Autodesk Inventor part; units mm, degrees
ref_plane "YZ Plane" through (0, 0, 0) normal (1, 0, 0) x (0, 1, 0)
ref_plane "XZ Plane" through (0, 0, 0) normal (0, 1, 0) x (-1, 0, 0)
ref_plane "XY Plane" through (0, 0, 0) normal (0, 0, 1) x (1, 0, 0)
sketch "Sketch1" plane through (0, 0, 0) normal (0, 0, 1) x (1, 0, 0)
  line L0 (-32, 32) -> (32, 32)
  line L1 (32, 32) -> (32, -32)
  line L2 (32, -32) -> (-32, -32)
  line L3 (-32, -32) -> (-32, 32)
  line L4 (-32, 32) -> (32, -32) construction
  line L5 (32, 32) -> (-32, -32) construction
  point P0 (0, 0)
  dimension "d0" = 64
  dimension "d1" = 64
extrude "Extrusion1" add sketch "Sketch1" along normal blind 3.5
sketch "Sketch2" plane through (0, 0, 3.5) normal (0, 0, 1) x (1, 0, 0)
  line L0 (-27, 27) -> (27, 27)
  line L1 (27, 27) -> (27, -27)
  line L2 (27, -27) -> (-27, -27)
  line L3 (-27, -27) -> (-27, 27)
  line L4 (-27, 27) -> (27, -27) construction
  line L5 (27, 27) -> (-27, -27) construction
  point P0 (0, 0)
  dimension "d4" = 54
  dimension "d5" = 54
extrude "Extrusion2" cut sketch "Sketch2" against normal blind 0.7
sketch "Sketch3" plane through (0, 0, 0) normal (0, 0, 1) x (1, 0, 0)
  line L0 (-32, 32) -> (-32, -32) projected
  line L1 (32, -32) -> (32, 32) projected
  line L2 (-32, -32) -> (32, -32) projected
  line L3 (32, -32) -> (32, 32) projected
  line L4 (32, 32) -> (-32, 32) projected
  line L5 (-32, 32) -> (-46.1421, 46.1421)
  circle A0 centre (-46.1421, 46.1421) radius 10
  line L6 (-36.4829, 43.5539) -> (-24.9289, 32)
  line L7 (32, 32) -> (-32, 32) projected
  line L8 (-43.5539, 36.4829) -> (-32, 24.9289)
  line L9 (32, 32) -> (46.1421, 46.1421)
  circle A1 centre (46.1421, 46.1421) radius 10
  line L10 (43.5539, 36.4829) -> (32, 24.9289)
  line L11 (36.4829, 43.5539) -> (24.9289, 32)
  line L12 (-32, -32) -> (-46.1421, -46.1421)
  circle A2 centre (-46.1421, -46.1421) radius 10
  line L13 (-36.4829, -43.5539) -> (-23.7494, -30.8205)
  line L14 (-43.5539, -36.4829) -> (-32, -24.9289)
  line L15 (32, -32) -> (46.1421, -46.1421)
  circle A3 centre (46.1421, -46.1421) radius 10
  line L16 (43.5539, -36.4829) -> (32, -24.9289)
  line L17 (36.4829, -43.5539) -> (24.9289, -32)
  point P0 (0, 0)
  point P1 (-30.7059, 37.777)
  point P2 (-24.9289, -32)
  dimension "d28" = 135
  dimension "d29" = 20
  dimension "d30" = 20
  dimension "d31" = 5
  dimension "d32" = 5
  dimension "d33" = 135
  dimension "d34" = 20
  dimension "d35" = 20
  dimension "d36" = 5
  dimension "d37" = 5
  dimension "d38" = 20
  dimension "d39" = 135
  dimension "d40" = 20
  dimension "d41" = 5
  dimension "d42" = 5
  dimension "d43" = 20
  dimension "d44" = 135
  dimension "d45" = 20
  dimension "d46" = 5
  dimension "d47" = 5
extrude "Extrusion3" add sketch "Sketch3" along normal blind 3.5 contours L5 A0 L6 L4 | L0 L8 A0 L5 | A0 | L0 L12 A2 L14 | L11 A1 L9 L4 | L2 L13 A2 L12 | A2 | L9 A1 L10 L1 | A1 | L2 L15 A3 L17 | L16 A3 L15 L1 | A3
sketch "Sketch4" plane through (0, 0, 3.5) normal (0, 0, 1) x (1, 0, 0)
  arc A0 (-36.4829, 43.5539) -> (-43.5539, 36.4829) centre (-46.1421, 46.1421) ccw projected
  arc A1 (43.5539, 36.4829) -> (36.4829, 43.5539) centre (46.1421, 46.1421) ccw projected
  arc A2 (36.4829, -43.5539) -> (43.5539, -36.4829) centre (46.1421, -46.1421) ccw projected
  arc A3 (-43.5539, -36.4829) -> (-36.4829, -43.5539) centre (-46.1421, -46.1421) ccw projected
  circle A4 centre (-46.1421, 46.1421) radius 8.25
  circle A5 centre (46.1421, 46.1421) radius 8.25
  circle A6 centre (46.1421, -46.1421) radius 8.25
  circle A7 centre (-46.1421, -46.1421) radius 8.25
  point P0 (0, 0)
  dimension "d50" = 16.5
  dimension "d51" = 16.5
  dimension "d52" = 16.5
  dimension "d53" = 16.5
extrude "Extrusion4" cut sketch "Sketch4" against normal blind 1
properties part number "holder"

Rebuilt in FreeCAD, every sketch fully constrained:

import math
import FreeCAD as App
import Part
import Sketcher
from FreeCAD import Vector
Q = App.Units.Quantity


def add_polygon(sketch, points):
    """Adds a closed chain of lines whose ends are joined by coincident constraints."""
    first, n = sketch.GeometryCount, len(points)
    for a, b in zip(points, points[1:] + points[:1]):
        sketch.addGeometry(Part.LineSegment(App.Vector(*a, 0), App.Vector(*b, 0)), False)
    for i in range(n):
        sketch.addConstraint(Sketcher.Constraint("Coincident", first + i, 2, first + (i + 1) % n, 1))

doc = App.newDocument("Part")
params = doc.addObject("Spreadsheet::Sheet", "Params")
for row, (alias, value) in enumerate([
    ("sketch1_width", "64 mm"),
    ("pad1_length", "3.5 mm"),
    ("sketch2_width", "54 mm"),
    ("pocket1_length", "0.7 mm"),
    ("sketch3_radius", "10 mm"),
    ("pad2_length", "3.5 mm"),
    ("sketch4_diameter", "16.5 mm"),
    ("pocket2_length", "1 mm"),
], start=1):
    params.set(f"A{row}", alias)
    params.set(f"B{row}", "=" + value)
    params.setAlias(f"B{row}", alias)

body = doc.addObject("PartDesign::Body", "Body")

# Sketch on XY plane
sketch1 = doc.addObject("Sketcher::SketchObject", "Sketch")
body.addObject(sketch1)
sketch1.AttachmentSupport = (doc.XY_Plane, [""])
sketch1.MapMode = "FlatFace"
add_polygon(sketch1, [(32, 32), (-32, 32), (-32, -32), (32, -32)])  # lines 0-3
sketch1.addConstraint(Sketcher.Constraint("Horizontal", 0))
sketch1.addConstraint(Sketcher.Constraint("Vertical", 1))
sketch1.addConstraint(Sketcher.Constraint("Horizontal", 2))
sketch1.addConstraint(Sketcher.Constraint("Vertical", 3))
sketch1.addConstraint(Sketcher.Constraint("Symmetric", 0, 2, 2, 2, -1, 1))
sketch1.addConstraint(Sketcher.Constraint("Equal", 2, 1))
sketch1.addConstraint(Sketcher.Constraint("DistanceX", 0, 2, 0, 1, Q("64 mm")))
sketch1.setExpression("Constraints[10]", "Params.sketch1_width")
pad1 = doc.addObject("PartDesign::Pad", "Pad")
body.addObject(pad1)
pad1.Profile = sketch1
pad1.setExpression("Length", "Params.pad1_length")

# Sketch on XY plane
sketch2 = doc.addObject("Sketcher::SketchObject", "Sketch001")
body.addObject(sketch2)
sketch2.AttachmentSupport = (doc.XY_Plane, [""])
sketch2.MapMode = "FlatFace"
sketch2.AttachmentOffset = App.Placement(Vector(0, 0, 3.5), App.Rotation())
add_polygon(sketch2, [(27, 27), (-27, 27), (-27, -27), (27, -27)])  # lines 0-3
sketch2.addConstraint(Sketcher.Constraint("Horizontal", 0))
sketch2.addConstraint(Sketcher.Constraint("Vertical", 1))
sketch2.addConstraint(Sketcher.Constraint("Horizontal", 2))
sketch2.addConstraint(Sketcher.Constraint("Vertical", 3))
sketch2.addConstraint(Sketcher.Constraint("Symmetric", 0, 2, 2, 2, -1, 1))
sketch2.addConstraint(Sketcher.Constraint("Equal", 2, 1))
sketch2.addConstraint(Sketcher.Constraint("DistanceX", 0, 2, 0, 1, Q("54 mm")))
sketch2.setExpression("Constraints[10]", "Params.sketch2_width")
pocket1 = doc.addObject("PartDesign::Pocket", "Pocket")
body.addObject(pocket1)
pocket1.Profile = sketch2
pocket1.setExpression("Length", "Params.pocket1_length")

# Sketch on XY plane
sketch3 = doc.addObject("Sketcher::SketchObject", "Sketch002")
body.addObject(sketch3)
sketch3.AttachmentSupport = (doc.XY_Plane, [""])
sketch3.MapMode = "FlatFace"
sketch3.addGeometry(Part.LineSegment(Vector(-25, 32, 0), Vector(-36, 44, 0)), False)
sketch3.addGeometry(Part.ArcOfCircle(Part.Circle(Vector(-46, 46, 0), Vector(0, 0, 1), 10), math.radians(-15), math.radians(285)), False)
sketch3.addGeometry(Part.LineSegment(Vector(-44, 36, 0), Vector(-32, 25, 0)), False)
sketch3.addGeometry(Part.LineSegment(Vector(-32, 25, 0), Vector(-32, 32, 0)), False)
sketch3.addGeometry(Part.LineSegment(Vector(-32, 32, 0), Vector(-25, 32, 0)), False)
sketch3.addGeometry(Part.LineSegment(Vector(-32, -32, 0), Vector(-32, -25, 0)), False)
sketch3.addGeometry(Part.LineSegment(Vector(-32, -25, 0), Vector(-44, -36, 0)), False)
sketch3.addGeometry(Part.ArcOfCircle(Part.Circle(Vector(-46, -46, 0), Vector(0, 0, 1), 10), math.radians(75), math.radians(375)), False)
sketch3.addGeometry(Part.LineSegment(Vector(-36, -44, 0), Vector(-25, -32, 0)), False)
sketch3.addGeometry(Part.LineSegment(Vector(-25, -32, 0), Vector(-32, -32, 0)), False)
sketch3.addGeometry(Part.LineSegment(Vector(36, 44, 0), Vector(25, 32, 0)), False)
sketch3.addGeometry(Part.LineSegment(Vector(25, 32, 0), Vector(32, 32, 0)), False)
sketch3.addGeometry(Part.LineSegment(Vector(32, 32, 0), Vector(32, 25, 0)), False)
sketch3.addGeometry(Part.LineSegment(Vector(32, 25, 0), Vector(44, 36, 0)), False)
sketch3.addGeometry(Part.ArcOfCircle(Part.Circle(Vector(46, 46, 0), Vector(0, 0, 1), 10), math.radians(-105), math.radians(195)), False)
sketch3.addGeometry(Part.LineSegment(Vector(32, -32, 0), Vector(25, -32, 0)), False)
sketch3.addGeometry(Part.LineSegment(Vector(25, -32, 0), Vector(36, -44, 0)), False)
sketch3.addGeometry(Part.ArcOfCircle(Part.Circle(Vector(46, -46, 0), Vector(0, 0, 1), 10), math.radians(165), math.radians(465)), False)
sketch3.addGeometry(Part.LineSegment(Vector(44, -36, 0), Vector(32, -25, 0)), False)
sketch3.addGeometry(Part.LineSegment(Vector(32, -25, 0), Vector(32, -32, 0)), False)
sketch3.addConstraint(Sketcher.Constraint("Coincident", 0, 2, 1, 1))
sketch3.addConstraint(Sketcher.Constraint("Coincident", 1, 2, 2, 1))
sketch3.addConstraint(Sketcher.Constraint("Coincident", 2, 2, 3, 1))
sketch3.addConstraint(Sketcher.Constraint("Coincident", 3, 2, 4, 1))
sketch3.addConstraint(Sketcher.Constraint("Coincident", 4, 2, 0, 1))
sketch3.addConstraint(Sketcher.Constraint("Coincident", 5, 2, 6, 1))
sketch3.addConstraint(Sketcher.Constraint("Coincident", 6, 2, 7, 1))
sketch3.addConstraint(Sketcher.Constraint("Coincident", 7, 2, 8, 1))
sketch3.addConstraint(Sketcher.Constraint("Coincident", 8, 2, 9, 1))
sketch3.addConstraint(Sketcher.Constraint("Coincident", 9, 2, 5, 1))
sketch3.addConstraint(Sketcher.Constraint("Coincident", 10, 2, 11, 1))
sketch3.addConstraint(Sketcher.Constraint("Coincident", 11, 2, 12, 1))
sketch3.addConstraint(Sketcher.Constraint("Coincident", 12, 2, 13, 1))
sketch3.addConstraint(Sketcher.Constraint("Coincident", 13, 2, 14, 1))
sketch3.addConstraint(Sketcher.Constraint("Coincident", 14, 2, 10, 1))
sketch3.addConstraint(Sketcher.Constraint("Coincident", 15, 2, 16, 1))
sketch3.addConstraint(Sketcher.Constraint("Coincident", 16, 2, 17, 1))
sketch3.addConstraint(Sketcher.Constraint("Coincident", 17, 2, 18, 1))
sketch3.addConstraint(Sketcher.Constraint("Coincident", 18, 2, 19, 1))
sketch3.addConstraint(Sketcher.Constraint("Coincident", 19, 2, 15, 1))
sketch3.addConstraint(Sketcher.Constraint("Vertical", 3))
sketch3.addConstraint(Sketcher.Constraint("Horizontal", 4))
sketch3.addConstraint(Sketcher.Constraint("Vertical", 5))
sketch3.addConstraint(Sketcher.Constraint("Horizontal", 9))
sketch3.addConstraint(Sketcher.Constraint("Horizontal", 11))
sketch3.addConstraint(Sketcher.Constraint("Vertical", 12))
sketch3.addConstraint(Sketcher.Constraint("Horizontal", 15))
sketch3.addConstraint(Sketcher.Constraint("Vertical", 19))
sketch3.addConstraint(Sketcher.Constraint("Equal", 1, 7))
sketch3.addConstraint(Sketcher.Constraint("Equal", 7, 14))
sketch3.addConstraint(Sketcher.Constraint("Equal", 14, 17))
sketch3.addConstraint(Sketcher.Constraint("Symmetric", 7, 3, 14, 3, -1, 1))
sketch3.addConstraint(Sketcher.Constraint("Symmetric", 1, 3, 17, 3, -1, 1))
sketch3.addConstraint(Sketcher.Constraint("Symmetric", 8, 2, 10, 2, -1, 1))
sketch3.addConstraint(Sketcher.Constraint("Symmetric", 5, 2, 12, 2, -1, 1))
sketch3.addConstraint(Sketcher.Constraint("Symmetric", 4, 2, 15, 2, -1, 1))
sketch3.addConstraint(Sketcher.Constraint("Symmetric", 2, 2, 18, 2, -1, 1))
sketch3.addConstraint(Sketcher.Constraint("Symmetric", 1, 3, 14, 3, -2))
sketch3.addConstraint(Sketcher.Constraint("Symmetric", 4, 2, 10, 2, -2))
sketch3.addConstraint(Sketcher.Constraint("Symmetric", 2, 2, 12, 2, -2))
sketch3.addConstraint(Sketcher.Constraint("Parallel", 0, 2))
sketch3.addConstraint(Sketcher.Constraint("Perpendicular", 2, 6))
sketch3.addConstraint(Sketcher.Constraint("Parallel", 6, 8))
sketch3.addConstraint(Sketcher.Constraint("Parallel", 8, 10))
sketch3.addConstraint(Sketcher.Constraint("Parallel", 10, 13))
sketch3.addConstraint(Sketcher.Constraint("Perpendicular", 13, 16))
sketch3.addConstraint(Sketcher.Constraint("Parallel", 16, 18))
sketch3.addConstraint(Sketcher.Constraint("Horizontal", 1, 2, 13, 2))
sketch3.addConstraint(Sketcher.Constraint("Equal", 15, 3))
sketch3.addConstraint(Sketcher.Constraint("Equal", 0, 2))
sketch3.addConstraint(Sketcher.Constraint("Radius", 1, Q("10 mm")))
sketch3.addConstraint(Sketcher.Constraint("DistanceX", 2, 2, -1, 1, Q("32 mm")))
sketch3.addConstraint(Sketcher.Constraint("DistanceY", -1, 1, 3, 2, Q("32 mm")))
sketch3.addConstraint(Sketcher.Constraint("DistanceX", 4, 1, 4, 2, Q("7.071 mm")))
sketch3.addConstraint(Sketcher.Constraint("DistanceX", 1, 3, -1, 1, Q("46.142 mm")))
sketch3.setExpression("Constraints[50]", "Params.sketch3_radius")
pad2 = doc.addObject("PartDesign::Pad", "Pad001")
body.addObject(pad2)
pad2.Profile = sketch3
pad2.setExpression("Length", "Params.pad2_length")

# Sketch on XY plane
sketch4 = doc.addObject("Sketcher::SketchObject", "Sketch003")
body.addObject(sketch4)
sketch4.AttachmentSupport = (doc.XY_Plane, [""])
sketch4.MapMode = "FlatFace"
sketch4.AttachmentOffset = App.Placement(Vector(0, 0, 3.5), App.Rotation())
sketch4.addGeometry(Part.Circle(Vector(-46, 46, 0), Vector(0, 0, 1), 8), False)
sketch4.addGeometry(Part.Circle(Vector(46, 46, 0), Vector(0, 0, 1), 8), False)
sketch4.addGeometry(Part.Circle(Vector(46, -46, 0), Vector(0, 0, 1), 8), False)
sketch4.addGeometry(Part.Circle(Vector(-46, -46, 0), Vector(0, 0, 1), 8), False)
sketch4.addConstraint(Sketcher.Constraint("Equal", 0, 1))
sketch4.addConstraint(Sketcher.Constraint("Equal", 1, 2))
sketch4.addConstraint(Sketcher.Constraint("Equal", 2, 3))
sketch4.addConstraint(Sketcher.Constraint("Symmetric", 0, 3, 2, 3, -1, 1))
sketch4.addConstraint(Sketcher.Constraint("Symmetric", 1, 3, 3, 3, -1, 1))
sketch4.addConstraint(Sketcher.Constraint("Symmetric", 0, 3, 1, 3, -2))
sketch4.addConstraint(Sketcher.Constraint("Diameter", 0, Q("16.5 mm")))
sketch4.addConstraint(Sketcher.Constraint("DistanceX", 0, 3, -1, 1, Q("46.142 mm")))
sketch4.addConstraint(Sketcher.Constraint("DistanceY", -1, 1, 0, 3, Q("46.142 mm")))
sketch4.setExpression("Constraints[6]", "Params.sketch4_diameter")
pocket2 = doc.addObject("PartDesign::Pocket", "Pocket001")
body.addObject(pocket2)
pocket2.Profile = sketch4
pocket2.setExpression("Length", "Params.pocket2_length")

doc.recompute()
